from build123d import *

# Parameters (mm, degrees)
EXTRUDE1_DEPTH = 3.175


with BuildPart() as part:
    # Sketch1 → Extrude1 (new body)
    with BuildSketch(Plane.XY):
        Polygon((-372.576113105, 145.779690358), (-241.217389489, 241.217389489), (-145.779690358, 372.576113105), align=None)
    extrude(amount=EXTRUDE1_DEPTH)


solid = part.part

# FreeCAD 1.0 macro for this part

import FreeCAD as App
import Part
import Sketcher
Q = App.Units.Quantity


def add_polygon(sketch, points):
    """Adds a closed chain of lines whose ends are joined by coincident constraints."""
    first, n = sketch.GeometryCount, len(points)
    for a, b in zip(points, points[1:] + points[:1]):
        sketch.addGeometry(Part.LineSegment(App.Vector(*a, 0), App.Vector(*b, 0)), False)
    for i in range(n):
        sketch.addConstraint(Sketcher.Constraint("Coincident", first + i, 2, first + (i + 1) % n, 1))

doc = App.newDocument("Part")
params = doc.addObject("Spreadsheet::Sheet", "Params")
for row, (alias, value) in enumerate([
    ("pad1_length", "0.125 in"),
], start=1):
    params.set(f"A{row}", alias)
    params.set(f"B{row}", "=" + value)
    params.setAlias(f"B{row}", alias)

body = doc.addObject("PartDesign::Body", "Body")

# Sketch on XY plane
sketch1 = body.newObject("Sketcher::SketchObject", "Sketch")
sketch1.AttachmentSupport = (doc.getObject("XY_Plane"), [""])
sketch1.MapMode = "FlatFace"
add_polygon(sketch1, [(-373, 146), (-241, 241), (-146, 373)])  # lines 0-2
sketch1.addConstraint(Sketcher.Constraint("Equal", 0, 1))
sketch1.addConstraint(Sketcher.Constraint("Angle", 0, Q("36 deg")))
sketch1.addConstraint(Sketcher.Constraint("Angle", 1, Q("54 deg")))
sketch1.addConstraint(Sketcher.Constraint("DistanceX", 0, 2, 1, 2, 95.437699))
sketch1.addConstraint(Sketcher.Constraint("DistanceX", 0, 2, -1, 1, 241.217389))
sketch1.addConstraint(Sketcher.Constraint("DistanceY", -1, 1, 0, 2, 241.217389))
pad1 = body.newObject("PartDesign::Pad", "Pad")
pad1.Profile = sketch1
pad1.setExpression("Length", "Params.pad1_length")

doc.recompute()
